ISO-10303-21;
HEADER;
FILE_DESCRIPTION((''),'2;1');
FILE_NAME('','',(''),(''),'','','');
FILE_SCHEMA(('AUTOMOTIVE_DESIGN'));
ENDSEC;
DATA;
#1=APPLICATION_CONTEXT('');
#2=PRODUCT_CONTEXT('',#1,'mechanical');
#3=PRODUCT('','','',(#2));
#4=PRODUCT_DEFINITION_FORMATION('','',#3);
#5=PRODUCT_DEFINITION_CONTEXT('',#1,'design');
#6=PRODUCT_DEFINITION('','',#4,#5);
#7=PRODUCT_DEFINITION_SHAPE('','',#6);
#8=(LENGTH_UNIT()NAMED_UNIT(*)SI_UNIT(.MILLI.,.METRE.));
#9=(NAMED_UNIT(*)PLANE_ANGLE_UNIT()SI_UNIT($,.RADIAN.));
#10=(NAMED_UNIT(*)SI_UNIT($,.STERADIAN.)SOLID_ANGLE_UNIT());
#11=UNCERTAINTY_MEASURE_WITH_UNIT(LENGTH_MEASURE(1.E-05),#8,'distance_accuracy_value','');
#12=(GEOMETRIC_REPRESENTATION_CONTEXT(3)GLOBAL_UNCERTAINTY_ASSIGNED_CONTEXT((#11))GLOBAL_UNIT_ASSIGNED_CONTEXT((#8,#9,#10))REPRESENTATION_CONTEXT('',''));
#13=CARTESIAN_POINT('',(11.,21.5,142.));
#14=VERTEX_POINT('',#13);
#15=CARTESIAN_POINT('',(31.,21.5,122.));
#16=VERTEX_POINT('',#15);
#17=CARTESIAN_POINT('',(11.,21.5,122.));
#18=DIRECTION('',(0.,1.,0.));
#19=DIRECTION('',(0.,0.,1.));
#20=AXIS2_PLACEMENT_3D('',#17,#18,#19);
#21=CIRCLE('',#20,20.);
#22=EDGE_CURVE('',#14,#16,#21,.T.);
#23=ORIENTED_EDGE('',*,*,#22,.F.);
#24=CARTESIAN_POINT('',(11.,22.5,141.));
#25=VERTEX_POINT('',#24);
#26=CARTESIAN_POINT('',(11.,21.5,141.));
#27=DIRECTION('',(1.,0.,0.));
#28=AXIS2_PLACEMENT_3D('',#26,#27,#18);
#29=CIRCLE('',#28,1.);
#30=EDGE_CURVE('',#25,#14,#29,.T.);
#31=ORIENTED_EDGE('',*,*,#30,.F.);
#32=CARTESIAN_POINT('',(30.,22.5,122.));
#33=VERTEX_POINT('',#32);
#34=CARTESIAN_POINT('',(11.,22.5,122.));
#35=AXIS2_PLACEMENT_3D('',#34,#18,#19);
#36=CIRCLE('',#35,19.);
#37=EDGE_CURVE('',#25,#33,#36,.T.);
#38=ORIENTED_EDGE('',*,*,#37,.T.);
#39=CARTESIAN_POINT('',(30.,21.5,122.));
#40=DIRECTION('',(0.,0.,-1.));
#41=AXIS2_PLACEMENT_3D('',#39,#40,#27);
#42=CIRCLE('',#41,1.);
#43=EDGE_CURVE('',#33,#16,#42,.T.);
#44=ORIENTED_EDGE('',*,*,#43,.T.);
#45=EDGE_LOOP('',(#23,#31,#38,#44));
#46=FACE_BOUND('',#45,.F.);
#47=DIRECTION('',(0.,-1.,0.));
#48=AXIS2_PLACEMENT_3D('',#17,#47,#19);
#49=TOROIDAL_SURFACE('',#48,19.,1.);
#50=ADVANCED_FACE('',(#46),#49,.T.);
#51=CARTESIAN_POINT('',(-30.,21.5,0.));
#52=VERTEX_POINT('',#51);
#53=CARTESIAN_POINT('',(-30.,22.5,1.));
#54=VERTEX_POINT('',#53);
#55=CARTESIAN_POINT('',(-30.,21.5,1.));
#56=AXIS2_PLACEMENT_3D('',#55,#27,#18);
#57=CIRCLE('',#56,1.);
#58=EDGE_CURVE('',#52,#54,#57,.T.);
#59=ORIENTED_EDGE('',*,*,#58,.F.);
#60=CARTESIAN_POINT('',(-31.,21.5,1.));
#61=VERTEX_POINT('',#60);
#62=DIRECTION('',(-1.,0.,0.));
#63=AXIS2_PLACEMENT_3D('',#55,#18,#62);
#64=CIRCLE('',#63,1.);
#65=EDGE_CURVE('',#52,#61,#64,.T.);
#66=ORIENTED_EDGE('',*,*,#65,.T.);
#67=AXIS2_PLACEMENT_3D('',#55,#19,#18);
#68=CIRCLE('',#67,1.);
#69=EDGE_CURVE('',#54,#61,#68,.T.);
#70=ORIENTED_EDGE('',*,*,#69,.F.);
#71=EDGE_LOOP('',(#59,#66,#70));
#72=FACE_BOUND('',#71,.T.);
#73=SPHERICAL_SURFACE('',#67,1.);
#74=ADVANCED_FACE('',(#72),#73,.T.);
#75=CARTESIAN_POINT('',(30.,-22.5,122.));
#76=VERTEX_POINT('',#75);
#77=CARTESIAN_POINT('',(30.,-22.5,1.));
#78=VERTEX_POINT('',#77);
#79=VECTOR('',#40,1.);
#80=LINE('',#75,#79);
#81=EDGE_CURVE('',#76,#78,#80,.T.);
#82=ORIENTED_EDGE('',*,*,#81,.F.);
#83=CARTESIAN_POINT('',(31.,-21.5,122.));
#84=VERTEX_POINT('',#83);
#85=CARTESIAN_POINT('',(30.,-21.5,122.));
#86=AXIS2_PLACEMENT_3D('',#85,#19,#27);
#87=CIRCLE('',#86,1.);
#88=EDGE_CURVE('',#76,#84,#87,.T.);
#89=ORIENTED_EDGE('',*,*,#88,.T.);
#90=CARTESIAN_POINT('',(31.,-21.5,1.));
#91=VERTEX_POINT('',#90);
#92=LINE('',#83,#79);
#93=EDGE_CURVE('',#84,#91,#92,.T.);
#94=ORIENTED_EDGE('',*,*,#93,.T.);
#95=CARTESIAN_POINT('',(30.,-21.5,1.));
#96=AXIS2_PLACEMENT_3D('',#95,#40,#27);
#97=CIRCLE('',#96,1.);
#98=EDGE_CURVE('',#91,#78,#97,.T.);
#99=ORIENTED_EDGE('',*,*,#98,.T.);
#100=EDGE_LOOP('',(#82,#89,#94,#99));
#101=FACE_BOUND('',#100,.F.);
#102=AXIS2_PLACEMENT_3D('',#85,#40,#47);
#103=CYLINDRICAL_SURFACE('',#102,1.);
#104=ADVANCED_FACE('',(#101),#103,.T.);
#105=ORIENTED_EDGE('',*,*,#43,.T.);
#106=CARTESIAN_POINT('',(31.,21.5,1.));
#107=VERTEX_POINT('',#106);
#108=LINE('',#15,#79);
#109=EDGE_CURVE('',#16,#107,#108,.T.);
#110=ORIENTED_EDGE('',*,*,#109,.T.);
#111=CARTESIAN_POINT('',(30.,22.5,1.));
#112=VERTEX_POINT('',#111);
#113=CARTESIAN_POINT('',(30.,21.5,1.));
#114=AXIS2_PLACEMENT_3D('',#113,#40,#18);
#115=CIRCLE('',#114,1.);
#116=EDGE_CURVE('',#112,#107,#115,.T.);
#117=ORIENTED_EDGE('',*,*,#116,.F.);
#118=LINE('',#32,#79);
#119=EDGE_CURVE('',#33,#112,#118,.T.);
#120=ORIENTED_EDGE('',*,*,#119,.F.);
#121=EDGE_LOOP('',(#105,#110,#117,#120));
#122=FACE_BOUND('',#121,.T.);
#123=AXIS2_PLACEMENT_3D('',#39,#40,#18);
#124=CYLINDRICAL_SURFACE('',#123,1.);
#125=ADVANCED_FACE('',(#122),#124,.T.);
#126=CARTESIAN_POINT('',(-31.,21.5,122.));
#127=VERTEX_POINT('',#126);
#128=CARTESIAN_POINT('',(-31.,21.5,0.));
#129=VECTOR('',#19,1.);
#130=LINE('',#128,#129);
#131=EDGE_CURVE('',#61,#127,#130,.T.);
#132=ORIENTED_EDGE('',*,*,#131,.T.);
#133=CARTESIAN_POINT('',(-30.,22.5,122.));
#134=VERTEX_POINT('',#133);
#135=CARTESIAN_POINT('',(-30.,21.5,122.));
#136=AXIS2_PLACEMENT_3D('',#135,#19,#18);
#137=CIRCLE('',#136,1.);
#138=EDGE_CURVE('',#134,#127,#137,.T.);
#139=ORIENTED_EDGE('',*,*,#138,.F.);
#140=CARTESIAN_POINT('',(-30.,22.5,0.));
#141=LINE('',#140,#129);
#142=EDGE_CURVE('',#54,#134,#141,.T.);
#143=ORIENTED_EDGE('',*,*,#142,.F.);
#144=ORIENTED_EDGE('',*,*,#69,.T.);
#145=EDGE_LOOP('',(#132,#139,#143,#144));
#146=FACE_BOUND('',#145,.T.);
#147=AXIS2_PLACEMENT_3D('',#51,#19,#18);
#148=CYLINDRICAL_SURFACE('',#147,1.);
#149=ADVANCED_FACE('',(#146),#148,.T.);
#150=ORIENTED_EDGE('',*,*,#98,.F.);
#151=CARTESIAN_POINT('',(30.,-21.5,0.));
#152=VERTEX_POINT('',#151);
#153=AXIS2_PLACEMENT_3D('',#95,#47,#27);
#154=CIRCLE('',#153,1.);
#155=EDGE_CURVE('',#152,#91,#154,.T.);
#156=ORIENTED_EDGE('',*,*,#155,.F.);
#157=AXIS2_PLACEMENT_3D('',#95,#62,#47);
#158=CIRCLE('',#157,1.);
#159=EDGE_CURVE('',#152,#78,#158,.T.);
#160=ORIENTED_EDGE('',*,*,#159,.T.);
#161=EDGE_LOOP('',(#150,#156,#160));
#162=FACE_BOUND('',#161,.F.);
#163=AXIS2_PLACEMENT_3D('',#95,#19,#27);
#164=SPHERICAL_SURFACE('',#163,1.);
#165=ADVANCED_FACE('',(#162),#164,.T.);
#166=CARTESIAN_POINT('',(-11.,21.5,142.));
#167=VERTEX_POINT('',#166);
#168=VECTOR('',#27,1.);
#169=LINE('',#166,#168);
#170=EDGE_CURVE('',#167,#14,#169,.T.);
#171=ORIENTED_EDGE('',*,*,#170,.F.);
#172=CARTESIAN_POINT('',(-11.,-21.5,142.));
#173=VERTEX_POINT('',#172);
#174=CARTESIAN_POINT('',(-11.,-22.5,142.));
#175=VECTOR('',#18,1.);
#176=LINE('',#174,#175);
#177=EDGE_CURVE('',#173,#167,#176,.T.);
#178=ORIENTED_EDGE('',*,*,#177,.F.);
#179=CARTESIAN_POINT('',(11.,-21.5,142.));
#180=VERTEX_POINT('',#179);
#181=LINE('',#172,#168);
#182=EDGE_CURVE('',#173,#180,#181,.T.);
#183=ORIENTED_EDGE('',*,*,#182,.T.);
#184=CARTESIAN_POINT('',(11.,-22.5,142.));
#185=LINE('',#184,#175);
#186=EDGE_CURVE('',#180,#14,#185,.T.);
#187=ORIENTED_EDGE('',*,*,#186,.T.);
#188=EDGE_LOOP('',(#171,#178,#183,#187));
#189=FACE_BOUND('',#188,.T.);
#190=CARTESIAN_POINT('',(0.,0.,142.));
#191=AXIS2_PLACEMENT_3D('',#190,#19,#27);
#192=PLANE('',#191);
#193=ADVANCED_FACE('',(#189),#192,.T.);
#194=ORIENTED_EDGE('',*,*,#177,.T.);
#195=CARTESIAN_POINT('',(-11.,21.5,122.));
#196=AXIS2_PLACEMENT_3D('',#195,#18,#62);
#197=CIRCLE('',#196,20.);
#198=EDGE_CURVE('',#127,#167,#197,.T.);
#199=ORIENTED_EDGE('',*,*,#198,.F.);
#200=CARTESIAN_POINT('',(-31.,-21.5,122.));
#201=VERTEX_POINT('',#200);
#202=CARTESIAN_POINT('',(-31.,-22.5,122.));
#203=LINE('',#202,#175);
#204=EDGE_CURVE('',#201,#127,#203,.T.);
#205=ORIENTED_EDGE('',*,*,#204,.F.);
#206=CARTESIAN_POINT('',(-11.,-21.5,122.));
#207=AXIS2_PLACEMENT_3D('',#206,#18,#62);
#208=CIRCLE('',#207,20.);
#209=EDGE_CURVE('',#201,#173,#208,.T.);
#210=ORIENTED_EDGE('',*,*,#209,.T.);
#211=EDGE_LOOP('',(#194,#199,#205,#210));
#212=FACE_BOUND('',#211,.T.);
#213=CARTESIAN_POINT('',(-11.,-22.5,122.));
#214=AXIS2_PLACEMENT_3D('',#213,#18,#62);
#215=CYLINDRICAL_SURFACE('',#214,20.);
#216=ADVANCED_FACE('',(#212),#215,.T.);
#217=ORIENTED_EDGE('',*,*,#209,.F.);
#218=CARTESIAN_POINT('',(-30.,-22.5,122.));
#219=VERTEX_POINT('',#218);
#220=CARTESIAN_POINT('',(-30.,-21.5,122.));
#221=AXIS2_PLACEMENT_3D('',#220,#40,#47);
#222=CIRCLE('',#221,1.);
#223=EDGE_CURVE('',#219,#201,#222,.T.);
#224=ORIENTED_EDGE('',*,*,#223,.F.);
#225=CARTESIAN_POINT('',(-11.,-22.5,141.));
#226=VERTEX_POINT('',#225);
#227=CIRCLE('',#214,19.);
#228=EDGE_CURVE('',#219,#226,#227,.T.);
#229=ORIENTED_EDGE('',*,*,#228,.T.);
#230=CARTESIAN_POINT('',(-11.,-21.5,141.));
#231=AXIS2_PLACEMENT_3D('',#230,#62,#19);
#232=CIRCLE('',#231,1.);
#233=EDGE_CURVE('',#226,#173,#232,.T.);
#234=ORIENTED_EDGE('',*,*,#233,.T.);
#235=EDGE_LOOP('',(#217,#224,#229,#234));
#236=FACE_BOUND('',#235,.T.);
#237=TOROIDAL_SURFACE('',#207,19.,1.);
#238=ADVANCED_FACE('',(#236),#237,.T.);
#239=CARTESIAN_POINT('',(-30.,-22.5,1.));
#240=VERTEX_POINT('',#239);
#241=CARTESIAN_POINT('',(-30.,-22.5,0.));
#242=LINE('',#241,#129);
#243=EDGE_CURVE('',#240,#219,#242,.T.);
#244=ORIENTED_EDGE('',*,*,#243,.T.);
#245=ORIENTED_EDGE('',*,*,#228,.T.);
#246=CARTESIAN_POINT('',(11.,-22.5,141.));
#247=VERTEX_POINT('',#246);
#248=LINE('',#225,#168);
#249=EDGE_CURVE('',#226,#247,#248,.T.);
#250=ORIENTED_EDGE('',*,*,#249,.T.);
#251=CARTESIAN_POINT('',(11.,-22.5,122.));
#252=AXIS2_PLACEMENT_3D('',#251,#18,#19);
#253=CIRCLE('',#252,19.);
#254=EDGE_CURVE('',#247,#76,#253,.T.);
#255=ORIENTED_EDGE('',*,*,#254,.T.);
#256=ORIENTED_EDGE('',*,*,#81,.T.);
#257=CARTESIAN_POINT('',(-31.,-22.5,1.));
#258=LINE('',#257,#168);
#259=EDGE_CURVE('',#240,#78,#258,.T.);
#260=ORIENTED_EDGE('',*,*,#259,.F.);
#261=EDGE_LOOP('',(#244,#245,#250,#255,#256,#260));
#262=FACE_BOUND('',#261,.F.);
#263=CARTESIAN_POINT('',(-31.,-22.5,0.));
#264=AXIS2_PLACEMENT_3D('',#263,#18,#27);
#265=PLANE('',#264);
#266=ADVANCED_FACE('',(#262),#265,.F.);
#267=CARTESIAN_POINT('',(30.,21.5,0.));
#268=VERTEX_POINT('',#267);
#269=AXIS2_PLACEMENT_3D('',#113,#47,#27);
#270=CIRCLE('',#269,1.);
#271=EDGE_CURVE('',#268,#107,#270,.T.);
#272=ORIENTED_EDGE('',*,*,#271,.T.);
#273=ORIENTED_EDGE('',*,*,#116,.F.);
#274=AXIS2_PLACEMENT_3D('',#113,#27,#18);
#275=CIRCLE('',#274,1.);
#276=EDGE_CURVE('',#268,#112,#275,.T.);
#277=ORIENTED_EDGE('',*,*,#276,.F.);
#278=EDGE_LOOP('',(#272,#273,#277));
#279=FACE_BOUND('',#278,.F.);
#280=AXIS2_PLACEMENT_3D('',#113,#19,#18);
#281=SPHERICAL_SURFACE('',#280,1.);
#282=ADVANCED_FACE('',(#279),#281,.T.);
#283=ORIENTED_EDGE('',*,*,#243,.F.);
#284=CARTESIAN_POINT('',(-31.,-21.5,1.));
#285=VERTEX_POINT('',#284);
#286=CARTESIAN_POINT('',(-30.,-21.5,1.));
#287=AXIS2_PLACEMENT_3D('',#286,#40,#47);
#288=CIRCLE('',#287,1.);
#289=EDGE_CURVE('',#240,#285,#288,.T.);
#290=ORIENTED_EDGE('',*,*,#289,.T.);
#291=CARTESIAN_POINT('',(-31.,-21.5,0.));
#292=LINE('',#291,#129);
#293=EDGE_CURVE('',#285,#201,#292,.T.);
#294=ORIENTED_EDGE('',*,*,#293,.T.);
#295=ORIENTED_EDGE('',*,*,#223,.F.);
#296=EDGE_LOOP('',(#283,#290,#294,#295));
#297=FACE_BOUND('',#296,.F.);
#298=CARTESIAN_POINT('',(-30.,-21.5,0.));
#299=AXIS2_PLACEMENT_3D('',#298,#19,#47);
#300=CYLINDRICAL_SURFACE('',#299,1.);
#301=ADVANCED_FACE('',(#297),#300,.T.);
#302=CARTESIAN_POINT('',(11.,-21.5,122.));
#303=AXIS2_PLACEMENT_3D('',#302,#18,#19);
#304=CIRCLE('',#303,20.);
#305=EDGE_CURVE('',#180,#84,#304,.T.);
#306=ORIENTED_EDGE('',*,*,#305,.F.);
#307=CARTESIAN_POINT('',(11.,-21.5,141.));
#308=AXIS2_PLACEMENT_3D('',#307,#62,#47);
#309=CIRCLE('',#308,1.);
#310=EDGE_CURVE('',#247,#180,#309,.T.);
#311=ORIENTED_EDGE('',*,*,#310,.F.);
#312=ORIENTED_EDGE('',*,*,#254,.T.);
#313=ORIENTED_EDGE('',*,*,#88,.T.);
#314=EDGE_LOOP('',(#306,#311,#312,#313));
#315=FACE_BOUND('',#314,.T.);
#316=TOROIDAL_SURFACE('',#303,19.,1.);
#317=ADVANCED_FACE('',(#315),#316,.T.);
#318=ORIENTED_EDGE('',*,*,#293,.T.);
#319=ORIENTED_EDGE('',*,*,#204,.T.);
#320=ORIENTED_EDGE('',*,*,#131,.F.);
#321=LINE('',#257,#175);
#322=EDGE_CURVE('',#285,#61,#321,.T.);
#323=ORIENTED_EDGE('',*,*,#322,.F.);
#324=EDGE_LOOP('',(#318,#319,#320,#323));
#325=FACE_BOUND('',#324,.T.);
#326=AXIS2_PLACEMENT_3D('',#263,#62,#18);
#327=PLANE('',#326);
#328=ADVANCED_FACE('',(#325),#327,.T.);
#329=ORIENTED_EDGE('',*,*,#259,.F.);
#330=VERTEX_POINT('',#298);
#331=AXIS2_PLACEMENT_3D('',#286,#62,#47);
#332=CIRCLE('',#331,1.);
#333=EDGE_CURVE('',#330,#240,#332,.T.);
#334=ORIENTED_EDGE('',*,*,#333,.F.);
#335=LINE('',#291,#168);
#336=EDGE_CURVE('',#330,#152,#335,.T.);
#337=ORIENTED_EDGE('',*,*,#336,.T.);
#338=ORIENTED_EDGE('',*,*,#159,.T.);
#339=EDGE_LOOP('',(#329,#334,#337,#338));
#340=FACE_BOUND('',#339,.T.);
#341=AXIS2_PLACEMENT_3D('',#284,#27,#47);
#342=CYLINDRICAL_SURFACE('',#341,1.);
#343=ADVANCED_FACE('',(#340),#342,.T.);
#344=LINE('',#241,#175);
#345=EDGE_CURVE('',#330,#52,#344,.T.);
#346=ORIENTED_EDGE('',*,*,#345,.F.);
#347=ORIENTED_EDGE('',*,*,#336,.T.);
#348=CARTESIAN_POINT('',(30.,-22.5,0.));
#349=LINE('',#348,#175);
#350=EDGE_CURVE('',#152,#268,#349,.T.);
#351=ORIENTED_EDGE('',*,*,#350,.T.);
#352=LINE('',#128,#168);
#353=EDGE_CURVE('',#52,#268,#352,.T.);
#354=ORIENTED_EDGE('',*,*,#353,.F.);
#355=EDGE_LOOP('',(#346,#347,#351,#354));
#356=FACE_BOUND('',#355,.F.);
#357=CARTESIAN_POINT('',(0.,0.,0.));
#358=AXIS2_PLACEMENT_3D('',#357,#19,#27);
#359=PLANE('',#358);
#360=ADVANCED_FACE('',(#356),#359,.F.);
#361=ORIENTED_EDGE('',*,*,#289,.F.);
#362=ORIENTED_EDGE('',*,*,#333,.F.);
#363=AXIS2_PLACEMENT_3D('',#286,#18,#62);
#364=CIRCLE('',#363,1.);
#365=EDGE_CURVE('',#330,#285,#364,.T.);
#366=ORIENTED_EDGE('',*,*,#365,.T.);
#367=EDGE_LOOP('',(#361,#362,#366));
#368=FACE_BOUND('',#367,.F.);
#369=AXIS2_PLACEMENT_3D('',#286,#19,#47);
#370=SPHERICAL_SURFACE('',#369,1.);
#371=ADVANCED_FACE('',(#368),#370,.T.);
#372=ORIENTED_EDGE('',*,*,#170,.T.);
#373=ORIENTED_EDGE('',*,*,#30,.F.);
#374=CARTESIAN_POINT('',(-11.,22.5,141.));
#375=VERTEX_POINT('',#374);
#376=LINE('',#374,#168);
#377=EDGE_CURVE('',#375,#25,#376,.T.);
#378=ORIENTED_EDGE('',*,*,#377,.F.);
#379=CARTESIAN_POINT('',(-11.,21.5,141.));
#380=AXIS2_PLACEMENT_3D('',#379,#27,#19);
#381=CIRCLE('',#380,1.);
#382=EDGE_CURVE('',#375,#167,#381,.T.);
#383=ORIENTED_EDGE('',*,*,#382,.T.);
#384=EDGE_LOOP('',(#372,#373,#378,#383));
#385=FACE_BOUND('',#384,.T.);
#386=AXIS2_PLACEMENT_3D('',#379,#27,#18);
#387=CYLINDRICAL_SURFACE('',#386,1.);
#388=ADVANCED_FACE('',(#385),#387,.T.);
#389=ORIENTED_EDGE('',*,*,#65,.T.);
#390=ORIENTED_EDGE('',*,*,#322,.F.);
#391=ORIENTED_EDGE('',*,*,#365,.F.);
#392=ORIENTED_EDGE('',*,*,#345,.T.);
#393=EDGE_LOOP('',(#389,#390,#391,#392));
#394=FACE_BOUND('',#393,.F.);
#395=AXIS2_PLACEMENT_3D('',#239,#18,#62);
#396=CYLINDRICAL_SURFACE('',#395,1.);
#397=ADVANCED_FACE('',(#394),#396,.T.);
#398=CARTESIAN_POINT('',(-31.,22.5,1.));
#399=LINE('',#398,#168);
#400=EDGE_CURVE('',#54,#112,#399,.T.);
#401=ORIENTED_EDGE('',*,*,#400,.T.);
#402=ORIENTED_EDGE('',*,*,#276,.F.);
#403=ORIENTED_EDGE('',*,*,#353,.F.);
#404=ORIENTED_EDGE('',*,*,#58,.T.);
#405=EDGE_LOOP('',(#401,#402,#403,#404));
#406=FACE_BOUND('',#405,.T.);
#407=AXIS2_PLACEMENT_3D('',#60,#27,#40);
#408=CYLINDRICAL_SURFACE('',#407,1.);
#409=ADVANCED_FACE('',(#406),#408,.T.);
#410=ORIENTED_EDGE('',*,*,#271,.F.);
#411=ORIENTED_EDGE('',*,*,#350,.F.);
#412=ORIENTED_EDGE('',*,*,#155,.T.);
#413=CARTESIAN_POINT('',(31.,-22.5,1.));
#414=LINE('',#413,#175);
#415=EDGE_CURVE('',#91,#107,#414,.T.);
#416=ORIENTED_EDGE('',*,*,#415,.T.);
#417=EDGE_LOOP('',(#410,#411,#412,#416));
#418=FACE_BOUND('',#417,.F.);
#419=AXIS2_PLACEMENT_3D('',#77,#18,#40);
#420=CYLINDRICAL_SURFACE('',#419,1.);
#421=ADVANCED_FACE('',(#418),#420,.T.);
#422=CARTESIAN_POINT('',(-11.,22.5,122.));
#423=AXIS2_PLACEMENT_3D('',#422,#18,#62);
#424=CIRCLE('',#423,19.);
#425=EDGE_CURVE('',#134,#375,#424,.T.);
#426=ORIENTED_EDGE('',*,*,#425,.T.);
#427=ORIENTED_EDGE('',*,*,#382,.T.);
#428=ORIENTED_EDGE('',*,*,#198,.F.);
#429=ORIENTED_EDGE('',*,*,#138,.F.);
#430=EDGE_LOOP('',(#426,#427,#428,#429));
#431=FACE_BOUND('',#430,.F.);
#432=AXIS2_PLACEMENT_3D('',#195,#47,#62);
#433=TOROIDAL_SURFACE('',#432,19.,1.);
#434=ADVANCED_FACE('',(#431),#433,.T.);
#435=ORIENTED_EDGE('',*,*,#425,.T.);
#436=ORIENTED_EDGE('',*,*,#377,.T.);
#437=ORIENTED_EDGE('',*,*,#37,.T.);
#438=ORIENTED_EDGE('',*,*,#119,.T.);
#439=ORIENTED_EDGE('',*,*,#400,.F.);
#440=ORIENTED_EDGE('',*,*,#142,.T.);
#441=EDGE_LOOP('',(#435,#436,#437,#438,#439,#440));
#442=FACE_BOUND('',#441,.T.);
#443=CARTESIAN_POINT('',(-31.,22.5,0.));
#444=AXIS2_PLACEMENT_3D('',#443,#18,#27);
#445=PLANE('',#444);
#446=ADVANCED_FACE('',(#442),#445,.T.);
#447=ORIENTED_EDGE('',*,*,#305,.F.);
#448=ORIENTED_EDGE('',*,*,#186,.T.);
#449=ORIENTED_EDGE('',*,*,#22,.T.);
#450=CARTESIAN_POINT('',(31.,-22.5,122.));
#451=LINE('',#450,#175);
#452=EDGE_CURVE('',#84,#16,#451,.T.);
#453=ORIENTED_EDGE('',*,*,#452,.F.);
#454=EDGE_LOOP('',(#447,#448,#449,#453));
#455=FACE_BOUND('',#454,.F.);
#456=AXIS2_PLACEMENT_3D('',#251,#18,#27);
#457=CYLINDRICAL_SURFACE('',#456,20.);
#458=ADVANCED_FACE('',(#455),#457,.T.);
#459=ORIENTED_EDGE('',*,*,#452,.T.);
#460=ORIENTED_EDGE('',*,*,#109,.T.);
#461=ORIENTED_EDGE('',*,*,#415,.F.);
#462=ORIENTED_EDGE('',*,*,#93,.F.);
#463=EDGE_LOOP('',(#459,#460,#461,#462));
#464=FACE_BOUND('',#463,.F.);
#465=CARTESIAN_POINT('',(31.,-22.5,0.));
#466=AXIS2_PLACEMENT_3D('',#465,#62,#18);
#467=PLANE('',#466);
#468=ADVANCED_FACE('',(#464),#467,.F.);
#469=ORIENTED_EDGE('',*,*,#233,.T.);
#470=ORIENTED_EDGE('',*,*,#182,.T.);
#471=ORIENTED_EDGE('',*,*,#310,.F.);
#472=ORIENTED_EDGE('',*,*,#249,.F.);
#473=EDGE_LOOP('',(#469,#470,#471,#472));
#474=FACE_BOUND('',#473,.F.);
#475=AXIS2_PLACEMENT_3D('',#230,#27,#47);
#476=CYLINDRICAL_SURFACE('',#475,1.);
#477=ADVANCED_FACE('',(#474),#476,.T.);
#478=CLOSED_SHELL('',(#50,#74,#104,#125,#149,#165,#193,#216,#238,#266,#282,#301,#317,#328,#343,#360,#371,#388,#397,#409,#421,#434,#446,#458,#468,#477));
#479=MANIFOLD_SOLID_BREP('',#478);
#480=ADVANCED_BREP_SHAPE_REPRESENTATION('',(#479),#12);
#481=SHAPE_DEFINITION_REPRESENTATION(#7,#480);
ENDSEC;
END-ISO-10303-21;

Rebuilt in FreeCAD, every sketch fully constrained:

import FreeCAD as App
import Part
import Sketcher
Q = App.Units.Quantity


def edges_at(feature, points):
    """Names of the edges that pass closest to the given points."""
    edges = feature.Shape.Edges
    near = lambda p: min(range(len(edges)), key=lambda i: edges[i].distToShape(Part.Vertex(*p))[0])
    return sorted({f"Edge{near(p) + 1}" for p in points})


def add_polygon(sketch, points):
    """Adds a closed chain of lines whose ends are joined by coincident constraints."""
    first, n = sketch.GeometryCount, len(points)
    for a, b in zip(points, points[1:] + points[:1]):
        sketch.addGeometry(Part.LineSegment(App.Vector(*a, 0), App.Vector(*b, 0)), False)
    for i in range(n):
        sketch.addConstraint(Sketcher.Constraint("Coincident", first + i, 2, first + (i + 1) % n, 1))

doc = App.newDocument("Part")
body = doc.addObject("PartDesign::Body", "Body")

# Sketch on XY plane
sketch1 = doc.addObject("Sketcher::SketchObject", "Sketch")
body.addObject(sketch1)
sketch1.AttachmentSupport = (doc.XY_Plane, [""])
sketch1.MapMode = "FlatFace"
add_polygon(sketch1, [(-31, 22.5), (-31, -22.5), (31, -22.5), (31, 22.5)])  # lines 0-3
sketch1.addConstraint([
    Sketcher.Constraint("Vertical", 0),
    Sketcher.Constraint("Horizontal", 1),
    Sketcher.Constraint("Vertical", 2),
    Sketcher.Constraint("Horizontal", 3),
    Sketcher.Constraint("Symmetric", 0, 2, 2, 2, -1, 1),
    Sketcher.Constraint("DistanceX", 1, 1, 1, 2, Q("62 mm")),
    Sketcher.Constraint("DistanceY", 0, 2, 0, 1, Q("45 mm")),
])
pad1 = doc.addObject("PartDesign::Pad", "Pad")
body.addObject(pad1)
pad1.Profile = sketch1
pad1.Length = 142
doc.recompute()

fillet = doc.addObject("PartDesign::Fillet", "Fillet")
body.addObject(fillet)
fillet.Base = (pad1, edges_at(pad1, [(31, 0, 142), (-31, 0, 142)]))
fillet.Radius = 20
doc.recompute()

fillet2 = doc.addObject("PartDesign::Fillet", "Fillet001")
body.addObject(fillet2)
fillet2.Base = (fillet, ["Edge1"])
fillet2.UseAllEdges = True
fillet2.Radius = 1

doc.recompute()
